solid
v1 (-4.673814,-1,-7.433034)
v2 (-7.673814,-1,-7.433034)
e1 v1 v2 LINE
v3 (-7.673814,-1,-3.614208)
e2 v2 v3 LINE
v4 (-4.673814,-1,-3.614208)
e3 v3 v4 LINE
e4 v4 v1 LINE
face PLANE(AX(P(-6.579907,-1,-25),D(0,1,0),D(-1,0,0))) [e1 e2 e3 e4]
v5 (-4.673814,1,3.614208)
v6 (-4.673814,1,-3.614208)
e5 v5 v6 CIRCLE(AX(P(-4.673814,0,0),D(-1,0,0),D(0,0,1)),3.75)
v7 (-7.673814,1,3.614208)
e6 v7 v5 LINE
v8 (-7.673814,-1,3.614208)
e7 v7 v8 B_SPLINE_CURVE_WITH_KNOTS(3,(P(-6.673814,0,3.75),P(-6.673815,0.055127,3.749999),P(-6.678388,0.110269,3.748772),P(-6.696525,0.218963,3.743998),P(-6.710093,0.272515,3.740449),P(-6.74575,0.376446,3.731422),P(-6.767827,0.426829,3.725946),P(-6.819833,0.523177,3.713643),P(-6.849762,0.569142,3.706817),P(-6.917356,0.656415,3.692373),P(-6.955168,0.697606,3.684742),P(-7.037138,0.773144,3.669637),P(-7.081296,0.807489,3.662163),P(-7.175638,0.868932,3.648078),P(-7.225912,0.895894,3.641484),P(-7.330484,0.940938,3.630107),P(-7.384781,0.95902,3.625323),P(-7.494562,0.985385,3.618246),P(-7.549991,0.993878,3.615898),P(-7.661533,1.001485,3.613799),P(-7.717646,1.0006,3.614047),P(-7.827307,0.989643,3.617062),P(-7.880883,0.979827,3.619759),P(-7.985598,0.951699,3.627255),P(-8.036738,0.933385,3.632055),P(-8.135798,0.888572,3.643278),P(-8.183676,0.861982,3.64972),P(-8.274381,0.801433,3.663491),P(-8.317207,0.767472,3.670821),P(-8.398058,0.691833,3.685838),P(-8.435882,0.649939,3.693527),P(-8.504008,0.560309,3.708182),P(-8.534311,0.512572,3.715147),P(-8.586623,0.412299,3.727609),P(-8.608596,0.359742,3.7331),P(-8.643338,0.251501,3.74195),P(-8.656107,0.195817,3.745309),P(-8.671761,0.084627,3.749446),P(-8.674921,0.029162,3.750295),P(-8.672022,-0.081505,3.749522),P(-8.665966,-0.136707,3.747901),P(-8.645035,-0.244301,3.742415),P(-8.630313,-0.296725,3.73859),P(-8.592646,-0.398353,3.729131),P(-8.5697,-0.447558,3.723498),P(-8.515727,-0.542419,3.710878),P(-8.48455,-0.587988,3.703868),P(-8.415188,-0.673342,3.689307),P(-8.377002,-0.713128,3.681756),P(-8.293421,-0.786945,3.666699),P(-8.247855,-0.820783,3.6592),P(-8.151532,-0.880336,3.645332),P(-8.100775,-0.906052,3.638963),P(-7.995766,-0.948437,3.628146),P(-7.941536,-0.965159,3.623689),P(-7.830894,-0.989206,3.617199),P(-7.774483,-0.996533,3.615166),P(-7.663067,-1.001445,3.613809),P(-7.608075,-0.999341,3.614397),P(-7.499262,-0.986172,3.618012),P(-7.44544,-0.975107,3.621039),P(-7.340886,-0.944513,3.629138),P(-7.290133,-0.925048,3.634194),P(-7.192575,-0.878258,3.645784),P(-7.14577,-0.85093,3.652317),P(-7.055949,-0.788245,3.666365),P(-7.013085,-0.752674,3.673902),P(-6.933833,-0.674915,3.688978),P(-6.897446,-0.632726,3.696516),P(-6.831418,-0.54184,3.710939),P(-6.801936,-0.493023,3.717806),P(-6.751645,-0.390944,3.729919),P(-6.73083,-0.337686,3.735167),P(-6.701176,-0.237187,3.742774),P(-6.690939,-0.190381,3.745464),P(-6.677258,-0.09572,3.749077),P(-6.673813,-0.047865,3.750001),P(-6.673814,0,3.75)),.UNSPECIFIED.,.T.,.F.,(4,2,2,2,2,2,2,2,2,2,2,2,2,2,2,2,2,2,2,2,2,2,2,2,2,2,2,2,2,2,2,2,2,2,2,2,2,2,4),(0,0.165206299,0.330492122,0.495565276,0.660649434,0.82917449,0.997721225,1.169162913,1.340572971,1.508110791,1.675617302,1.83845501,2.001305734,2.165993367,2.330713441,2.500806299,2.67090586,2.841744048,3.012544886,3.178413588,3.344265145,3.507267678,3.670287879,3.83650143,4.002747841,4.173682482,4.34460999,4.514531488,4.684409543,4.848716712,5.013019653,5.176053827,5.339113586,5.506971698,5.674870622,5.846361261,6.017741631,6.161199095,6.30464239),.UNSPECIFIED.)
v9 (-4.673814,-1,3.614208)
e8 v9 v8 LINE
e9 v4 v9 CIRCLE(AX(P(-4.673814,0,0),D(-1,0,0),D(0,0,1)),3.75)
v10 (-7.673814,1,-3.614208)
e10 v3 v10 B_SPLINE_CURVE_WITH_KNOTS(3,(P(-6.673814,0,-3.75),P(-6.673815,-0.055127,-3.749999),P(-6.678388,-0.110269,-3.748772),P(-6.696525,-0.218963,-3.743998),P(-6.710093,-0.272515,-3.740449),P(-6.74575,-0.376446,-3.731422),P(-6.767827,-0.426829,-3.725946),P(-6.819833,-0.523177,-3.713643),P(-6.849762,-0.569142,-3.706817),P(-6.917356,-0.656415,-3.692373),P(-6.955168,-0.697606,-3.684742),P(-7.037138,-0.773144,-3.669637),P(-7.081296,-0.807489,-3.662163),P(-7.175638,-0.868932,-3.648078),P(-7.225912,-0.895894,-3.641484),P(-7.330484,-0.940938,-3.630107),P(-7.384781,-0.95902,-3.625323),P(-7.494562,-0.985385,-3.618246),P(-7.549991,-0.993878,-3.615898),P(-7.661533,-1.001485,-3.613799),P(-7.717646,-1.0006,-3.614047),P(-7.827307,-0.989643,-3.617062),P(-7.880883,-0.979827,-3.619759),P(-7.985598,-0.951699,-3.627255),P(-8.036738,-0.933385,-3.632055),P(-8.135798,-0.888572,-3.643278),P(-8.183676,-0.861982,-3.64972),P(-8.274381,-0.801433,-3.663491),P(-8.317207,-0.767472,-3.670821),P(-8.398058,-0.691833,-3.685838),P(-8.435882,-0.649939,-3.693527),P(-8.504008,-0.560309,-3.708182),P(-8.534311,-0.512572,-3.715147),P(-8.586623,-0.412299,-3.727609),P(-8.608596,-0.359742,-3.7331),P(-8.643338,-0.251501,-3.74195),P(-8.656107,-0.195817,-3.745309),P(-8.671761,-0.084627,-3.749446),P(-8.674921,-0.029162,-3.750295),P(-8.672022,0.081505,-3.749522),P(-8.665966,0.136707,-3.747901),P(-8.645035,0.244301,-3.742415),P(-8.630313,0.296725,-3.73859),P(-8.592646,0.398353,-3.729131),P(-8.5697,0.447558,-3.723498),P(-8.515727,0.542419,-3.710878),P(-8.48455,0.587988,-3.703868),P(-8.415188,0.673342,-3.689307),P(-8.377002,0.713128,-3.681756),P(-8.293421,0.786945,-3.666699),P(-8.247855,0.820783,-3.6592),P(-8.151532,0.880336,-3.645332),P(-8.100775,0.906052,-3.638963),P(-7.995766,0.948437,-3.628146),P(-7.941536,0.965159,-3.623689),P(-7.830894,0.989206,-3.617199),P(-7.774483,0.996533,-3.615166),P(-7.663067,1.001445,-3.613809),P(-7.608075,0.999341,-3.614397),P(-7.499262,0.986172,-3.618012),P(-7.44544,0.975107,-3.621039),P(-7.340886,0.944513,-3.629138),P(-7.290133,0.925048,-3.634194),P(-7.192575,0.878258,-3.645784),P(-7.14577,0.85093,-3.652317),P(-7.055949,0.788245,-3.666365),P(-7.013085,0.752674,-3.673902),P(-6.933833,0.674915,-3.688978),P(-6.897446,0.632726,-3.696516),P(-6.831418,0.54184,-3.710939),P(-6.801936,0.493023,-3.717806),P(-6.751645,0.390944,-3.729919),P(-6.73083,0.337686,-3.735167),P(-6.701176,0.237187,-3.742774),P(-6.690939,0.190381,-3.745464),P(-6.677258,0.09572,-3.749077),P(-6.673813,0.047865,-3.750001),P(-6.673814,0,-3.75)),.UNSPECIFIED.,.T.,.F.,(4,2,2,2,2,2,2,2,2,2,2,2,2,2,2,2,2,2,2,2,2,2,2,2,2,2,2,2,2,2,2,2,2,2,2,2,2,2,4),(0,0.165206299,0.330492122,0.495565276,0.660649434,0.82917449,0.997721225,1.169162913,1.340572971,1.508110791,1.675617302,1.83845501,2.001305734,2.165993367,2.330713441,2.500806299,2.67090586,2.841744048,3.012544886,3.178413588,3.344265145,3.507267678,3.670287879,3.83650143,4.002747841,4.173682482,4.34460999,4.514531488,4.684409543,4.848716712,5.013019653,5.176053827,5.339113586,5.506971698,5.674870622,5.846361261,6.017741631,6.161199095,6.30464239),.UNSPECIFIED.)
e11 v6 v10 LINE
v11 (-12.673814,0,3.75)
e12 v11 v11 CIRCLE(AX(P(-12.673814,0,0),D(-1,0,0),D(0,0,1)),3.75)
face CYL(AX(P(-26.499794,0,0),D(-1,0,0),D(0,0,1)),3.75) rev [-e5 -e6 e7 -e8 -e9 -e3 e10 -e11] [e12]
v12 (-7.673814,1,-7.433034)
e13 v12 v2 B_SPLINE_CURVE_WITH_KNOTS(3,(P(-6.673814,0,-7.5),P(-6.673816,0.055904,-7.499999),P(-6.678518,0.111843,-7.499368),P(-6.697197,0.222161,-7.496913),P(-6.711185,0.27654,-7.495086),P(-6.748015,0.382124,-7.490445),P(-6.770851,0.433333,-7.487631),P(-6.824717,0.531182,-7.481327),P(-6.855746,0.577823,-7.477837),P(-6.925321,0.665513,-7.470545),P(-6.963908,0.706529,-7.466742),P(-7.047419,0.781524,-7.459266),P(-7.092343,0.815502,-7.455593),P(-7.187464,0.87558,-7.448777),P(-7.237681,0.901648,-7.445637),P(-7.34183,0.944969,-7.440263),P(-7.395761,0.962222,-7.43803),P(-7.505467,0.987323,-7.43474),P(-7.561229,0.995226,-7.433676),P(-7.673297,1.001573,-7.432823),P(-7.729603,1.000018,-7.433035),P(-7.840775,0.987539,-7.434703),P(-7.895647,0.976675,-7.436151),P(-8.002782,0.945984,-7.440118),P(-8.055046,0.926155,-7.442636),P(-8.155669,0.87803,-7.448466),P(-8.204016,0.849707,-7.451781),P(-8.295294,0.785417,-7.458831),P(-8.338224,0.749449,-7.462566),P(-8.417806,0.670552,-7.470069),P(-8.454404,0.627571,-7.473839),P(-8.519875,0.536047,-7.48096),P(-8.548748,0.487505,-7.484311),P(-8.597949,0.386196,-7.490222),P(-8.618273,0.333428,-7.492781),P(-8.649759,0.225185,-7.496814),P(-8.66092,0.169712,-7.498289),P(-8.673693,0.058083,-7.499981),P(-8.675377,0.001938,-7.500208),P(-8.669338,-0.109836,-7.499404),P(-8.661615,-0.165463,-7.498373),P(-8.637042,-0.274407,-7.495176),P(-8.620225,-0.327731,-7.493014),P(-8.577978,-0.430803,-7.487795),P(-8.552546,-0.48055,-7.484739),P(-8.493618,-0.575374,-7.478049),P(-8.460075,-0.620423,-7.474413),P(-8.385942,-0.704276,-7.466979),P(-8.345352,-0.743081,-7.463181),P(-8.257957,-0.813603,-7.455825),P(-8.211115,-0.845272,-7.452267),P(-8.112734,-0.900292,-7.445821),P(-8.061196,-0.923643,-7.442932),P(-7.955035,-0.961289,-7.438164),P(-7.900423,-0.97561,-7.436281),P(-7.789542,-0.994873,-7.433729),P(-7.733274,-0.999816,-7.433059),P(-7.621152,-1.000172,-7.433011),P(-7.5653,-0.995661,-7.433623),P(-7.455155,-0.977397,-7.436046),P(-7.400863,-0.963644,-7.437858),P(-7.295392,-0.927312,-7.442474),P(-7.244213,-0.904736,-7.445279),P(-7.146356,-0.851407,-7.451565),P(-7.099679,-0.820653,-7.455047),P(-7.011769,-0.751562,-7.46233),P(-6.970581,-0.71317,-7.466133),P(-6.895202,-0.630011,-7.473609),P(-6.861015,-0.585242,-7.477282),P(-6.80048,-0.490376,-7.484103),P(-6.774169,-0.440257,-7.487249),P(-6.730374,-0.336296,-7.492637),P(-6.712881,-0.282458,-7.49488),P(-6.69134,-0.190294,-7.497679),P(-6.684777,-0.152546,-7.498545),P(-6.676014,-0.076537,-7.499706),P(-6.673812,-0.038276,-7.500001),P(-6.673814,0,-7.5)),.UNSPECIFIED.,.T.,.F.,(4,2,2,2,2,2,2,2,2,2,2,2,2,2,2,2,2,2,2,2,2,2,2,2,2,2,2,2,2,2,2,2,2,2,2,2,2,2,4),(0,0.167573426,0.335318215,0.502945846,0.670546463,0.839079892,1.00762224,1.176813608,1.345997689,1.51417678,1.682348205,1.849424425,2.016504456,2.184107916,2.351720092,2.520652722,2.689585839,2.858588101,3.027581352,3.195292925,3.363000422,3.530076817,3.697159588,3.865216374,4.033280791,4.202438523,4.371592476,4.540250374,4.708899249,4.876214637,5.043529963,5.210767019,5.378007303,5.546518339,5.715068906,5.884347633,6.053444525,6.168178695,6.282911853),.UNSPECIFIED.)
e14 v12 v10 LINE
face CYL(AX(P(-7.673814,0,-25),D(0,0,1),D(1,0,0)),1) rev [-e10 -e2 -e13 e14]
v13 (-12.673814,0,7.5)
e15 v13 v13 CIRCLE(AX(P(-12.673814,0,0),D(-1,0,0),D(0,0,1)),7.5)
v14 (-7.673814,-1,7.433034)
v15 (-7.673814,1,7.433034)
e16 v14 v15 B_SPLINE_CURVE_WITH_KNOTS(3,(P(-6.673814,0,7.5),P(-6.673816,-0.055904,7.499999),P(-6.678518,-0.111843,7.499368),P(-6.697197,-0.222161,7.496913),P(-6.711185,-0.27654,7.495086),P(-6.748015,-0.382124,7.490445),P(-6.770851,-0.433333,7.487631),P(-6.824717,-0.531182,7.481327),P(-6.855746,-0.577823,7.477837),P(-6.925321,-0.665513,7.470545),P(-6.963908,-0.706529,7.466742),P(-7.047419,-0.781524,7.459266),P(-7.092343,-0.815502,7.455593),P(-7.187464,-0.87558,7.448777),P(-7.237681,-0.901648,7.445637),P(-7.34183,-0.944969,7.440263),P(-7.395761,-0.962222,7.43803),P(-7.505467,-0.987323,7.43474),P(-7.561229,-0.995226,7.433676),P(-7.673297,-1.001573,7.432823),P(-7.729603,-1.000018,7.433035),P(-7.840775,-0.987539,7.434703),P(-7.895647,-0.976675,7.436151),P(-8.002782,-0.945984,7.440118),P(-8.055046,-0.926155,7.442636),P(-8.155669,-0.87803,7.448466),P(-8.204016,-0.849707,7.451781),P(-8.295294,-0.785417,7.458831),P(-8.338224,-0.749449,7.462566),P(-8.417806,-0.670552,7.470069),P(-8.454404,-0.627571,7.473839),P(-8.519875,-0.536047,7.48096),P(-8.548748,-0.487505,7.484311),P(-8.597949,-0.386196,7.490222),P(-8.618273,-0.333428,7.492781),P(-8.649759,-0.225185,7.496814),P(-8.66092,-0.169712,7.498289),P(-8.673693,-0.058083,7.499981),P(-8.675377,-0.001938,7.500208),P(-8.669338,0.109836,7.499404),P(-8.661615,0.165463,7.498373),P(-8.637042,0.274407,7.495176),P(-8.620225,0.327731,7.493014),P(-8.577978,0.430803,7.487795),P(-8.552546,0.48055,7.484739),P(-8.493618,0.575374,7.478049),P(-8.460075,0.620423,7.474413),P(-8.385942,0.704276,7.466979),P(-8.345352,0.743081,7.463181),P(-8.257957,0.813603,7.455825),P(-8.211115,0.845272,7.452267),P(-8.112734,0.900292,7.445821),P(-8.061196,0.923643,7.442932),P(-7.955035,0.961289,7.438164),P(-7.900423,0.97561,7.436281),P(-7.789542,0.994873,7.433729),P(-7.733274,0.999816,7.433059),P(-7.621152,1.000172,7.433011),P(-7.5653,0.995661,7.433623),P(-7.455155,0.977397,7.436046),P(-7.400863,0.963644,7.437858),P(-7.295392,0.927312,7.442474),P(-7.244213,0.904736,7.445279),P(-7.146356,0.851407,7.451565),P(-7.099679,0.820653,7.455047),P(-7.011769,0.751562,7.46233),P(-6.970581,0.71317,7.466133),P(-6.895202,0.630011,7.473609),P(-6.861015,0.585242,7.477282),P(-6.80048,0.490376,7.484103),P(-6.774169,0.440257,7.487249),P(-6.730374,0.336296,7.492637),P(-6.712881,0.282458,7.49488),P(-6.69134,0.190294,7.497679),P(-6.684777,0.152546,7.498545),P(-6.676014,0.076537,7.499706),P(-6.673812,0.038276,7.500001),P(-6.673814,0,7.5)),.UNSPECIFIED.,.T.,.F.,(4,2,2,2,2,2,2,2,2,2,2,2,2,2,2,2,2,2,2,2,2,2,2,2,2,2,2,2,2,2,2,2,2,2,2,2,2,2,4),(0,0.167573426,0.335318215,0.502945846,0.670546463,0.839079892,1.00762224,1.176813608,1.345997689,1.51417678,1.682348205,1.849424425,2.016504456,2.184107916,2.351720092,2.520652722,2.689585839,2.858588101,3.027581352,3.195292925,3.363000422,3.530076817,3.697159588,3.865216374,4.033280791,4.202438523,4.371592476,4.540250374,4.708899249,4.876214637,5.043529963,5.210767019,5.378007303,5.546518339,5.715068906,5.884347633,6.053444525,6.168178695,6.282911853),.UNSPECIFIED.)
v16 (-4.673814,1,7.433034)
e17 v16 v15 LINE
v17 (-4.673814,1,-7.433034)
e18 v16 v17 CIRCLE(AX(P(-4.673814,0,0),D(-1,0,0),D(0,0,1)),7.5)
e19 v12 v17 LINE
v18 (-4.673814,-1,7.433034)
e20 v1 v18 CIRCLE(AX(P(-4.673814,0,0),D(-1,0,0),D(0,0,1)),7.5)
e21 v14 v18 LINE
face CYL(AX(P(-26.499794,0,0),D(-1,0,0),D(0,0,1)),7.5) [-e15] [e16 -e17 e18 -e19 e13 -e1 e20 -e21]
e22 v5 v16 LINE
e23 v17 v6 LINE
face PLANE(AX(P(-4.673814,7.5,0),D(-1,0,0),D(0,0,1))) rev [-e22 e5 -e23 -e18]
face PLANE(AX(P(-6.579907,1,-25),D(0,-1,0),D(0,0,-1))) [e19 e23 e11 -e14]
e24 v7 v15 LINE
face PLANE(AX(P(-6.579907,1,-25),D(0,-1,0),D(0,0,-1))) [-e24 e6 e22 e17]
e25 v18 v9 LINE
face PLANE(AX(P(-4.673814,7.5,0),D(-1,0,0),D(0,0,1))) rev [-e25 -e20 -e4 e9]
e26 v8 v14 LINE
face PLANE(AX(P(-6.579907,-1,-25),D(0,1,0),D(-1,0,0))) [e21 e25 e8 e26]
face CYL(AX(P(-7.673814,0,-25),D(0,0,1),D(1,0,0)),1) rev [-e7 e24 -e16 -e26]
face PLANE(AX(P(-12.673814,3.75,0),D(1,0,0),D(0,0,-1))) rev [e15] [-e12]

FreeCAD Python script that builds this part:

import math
import FreeCAD as App
import Part
import Sketcher

V = App.Vector
Q = App.Units.Quantity


def add_polygon(sketch, points):
    """Adds a closed chain of lines whose ends are joined by coincident constraints."""
    first, n = sketch.GeometryCount, len(points)
    for a, b in zip(points, points[1:] + points[:1]):
        sketch.addGeometry(Part.LineSegment(App.Vector(*a, 0), App.Vector(*b, 0)), False)
    for i in range(n):
        sketch.addConstraint(Sketcher.Constraint("Coincident", first + i, 2, first + (i + 1) % n, 1))

doc = App.newDocument("Part")
params = doc.addObject("Spreadsheet::Sheet", "Params")
for row, (alias, value) in enumerate([
    ("sketch1_width", "8 mm"),
    ("sketch1_height", "3.75 mm"),
    ("revolution_angle", "360 deg"),
    ("sketch2_radius", "1 mm"),
    ("pocket1_length", "50 mm"),
], start=1):
    params.set(f"A{row}", alias)
    params.set(f"B{row}", "=" + value)
    params.setAlias(f"B{row}", alias)

body = doc.addObject("PartDesign::Body", "Body")

# Sketch on XY plane
sketch1 = body.newObject("Sketcher::SketchObject", "Sketch")
sketch1.AttachmentSupport = (doc.getObject("XY_Plane"), [""])
sketch1.MapMode = "FlatFace"
add_polygon(sketch1, [(-12.7, 7.5), (-12.7, 3.8), (-4.7, 3.8), (-4.7, 7.5)])  # lines 0-3
sketch1.addConstraint([
    Sketcher.Constraint("Vertical", 0),
    Sketcher.Constraint("Horizontal", 1),
    Sketcher.Constraint("Vertical", 2),
    Sketcher.Constraint("Horizontal", 3),
    Sketcher.Constraint("DistanceX", 1, 1, 1, 2, Q("8 mm")),
    Sketcher.Constraint("DistanceY", 0, 2, 0, 1, Q("3.75 mm")),
    Sketcher.Constraint("DistanceY", -1, 1, 2, 2, Q("7.5 mm")),
    Sketcher.Constraint("DistanceX", 0, 2, -1, 1, Q("12.673814 mm")),
])
sketch1.setExpression("Constraints[8]", "Params.sketch1_width")
sketch1.setExpression("Constraints[9]", "Params.sketch1_height")
revolution = body.newObject("PartDesign::Revolution", "Revolution")
revolution.Profile = sketch1
revolution.ReferenceAxis = (sketch1, ["H_Axis"])
revolution.setExpression("Angle", "Params.revolution_angle")

# Sketch on XY plane
sketch2 = body.newObject("Sketcher::SketchObject", "Sketch001")
sketch2.AttachmentSupport = (doc.getObject("XY_Plane"), [""])
sketch2.MapMode = "FlatFace"
sketch2.addGeometry([
    Part.LineSegment(V(-4.1, 1, 0), V(-7.7, 1, 0)),  # 0
    Part.ArcOfCircle(Part.Circle(V(-7.7, 0, 0), V(0, 0, 1), 1), math.radians(90), math.radians(180)),  # 1
    Part.ArcOfCircle(Part.Circle(V(-7.7, 0, 0), V(0, 0, 1), 1), math.radians(-180), math.radians(-90)),  # 2
    Part.LineSegment(V(-7.7, -1, 0), V(-4.1, -1, 0)),  # 3
    Part.LineSegment(V(-4.1, -1, 0), V(-4.1, 1, 0)),  # 4
], False)
sketch2.addConstraint([
    Sketcher.Constraint("Tangent", 0, 2, 1, 1),
    Sketcher.Constraint("Tangent", 1, 2, 2, 1),
    Sketcher.Constraint("Tangent", 2, 2, 3, 1),
    Sketcher.Constraint("Coincident", 3, 2, 4, 1),
    Sketcher.Constraint("Coincident", 4, 2, 0, 1),
    Sketcher.Constraint("Horizontal", 0),
    Sketcher.Constraint("Horizontal", 3),
    Sketcher.Constraint("Equal", 1, 2),
    Sketcher.Constraint("PointOnObject", 1, 3, -1),
    Sketcher.Constraint("PointOnObject", 1, 2, -1),
    Sketcher.Constraint("Radius", 1, Q("1 mm")),
    Sketcher.Constraint("DistanceX", 0, 2, 0, 1, Q("3.528057 mm")),
    Sketcher.Constraint("DistanceX", 3, 1, 3, 2, Q("3.537445 mm")),
    Sketcher.Constraint("DistanceX", 3, 2, -1, 1, Q("4.136369 mm")),
])
sketch2.setExpression("Constraints[10]", "Params.sketch2_radius")
pocket1 = body.newObject("PartDesign::Pocket", "Pocket")
pocket1.Profile = sketch2
pocket1.setExpression("Length", "Params.pocket1_length")
pocket1.Midplane = True

doc.recompute()
